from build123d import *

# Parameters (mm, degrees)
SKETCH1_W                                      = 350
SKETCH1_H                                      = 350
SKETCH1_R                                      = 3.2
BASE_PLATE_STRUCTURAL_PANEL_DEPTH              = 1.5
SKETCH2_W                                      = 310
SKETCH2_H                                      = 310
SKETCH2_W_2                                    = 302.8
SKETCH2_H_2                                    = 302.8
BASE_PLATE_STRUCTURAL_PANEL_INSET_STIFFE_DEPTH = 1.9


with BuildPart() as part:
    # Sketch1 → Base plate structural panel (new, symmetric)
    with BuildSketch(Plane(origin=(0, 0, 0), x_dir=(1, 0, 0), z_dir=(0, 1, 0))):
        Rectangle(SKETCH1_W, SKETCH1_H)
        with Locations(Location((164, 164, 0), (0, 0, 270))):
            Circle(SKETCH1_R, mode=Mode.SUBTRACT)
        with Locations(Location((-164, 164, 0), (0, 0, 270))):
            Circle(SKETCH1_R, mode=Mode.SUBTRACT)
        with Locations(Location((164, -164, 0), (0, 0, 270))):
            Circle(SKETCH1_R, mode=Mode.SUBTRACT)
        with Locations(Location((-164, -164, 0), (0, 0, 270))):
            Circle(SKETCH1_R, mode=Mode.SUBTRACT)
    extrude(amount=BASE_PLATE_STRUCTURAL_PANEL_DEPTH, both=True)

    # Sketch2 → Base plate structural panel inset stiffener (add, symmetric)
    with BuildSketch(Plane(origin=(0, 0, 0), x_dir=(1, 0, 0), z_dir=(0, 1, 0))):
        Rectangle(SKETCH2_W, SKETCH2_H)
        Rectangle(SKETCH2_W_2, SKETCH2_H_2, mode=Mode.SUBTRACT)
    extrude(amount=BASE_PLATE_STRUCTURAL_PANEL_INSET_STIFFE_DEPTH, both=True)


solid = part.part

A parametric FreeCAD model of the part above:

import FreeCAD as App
import Part
import Sketcher
from FreeCAD import Vector
Q = App.Units.Quantity


def add_polygon(sketch, points):
    """Adds a closed chain of lines whose ends are joined by coincident constraints."""
    first, n = sketch.GeometryCount, len(points)
    for a, b in zip(points, points[1:] + points[:1]):
        sketch.addGeometry(Part.LineSegment(App.Vector(*a, 0), App.Vector(*b, 0)), False)
    for i in range(n):
        sketch.addConstraint(Sketcher.Constraint("Coincident", first + i, 2, first + (i + 1) % n, 1))

doc = App.newDocument("Part")
body = doc.addObject("PartDesign::Body", "Body")

# Sketch on XZ plane
sketch1 = body.newObject("Sketcher::SketchObject", "Sketch")
sketch1.AttachmentSupport = (doc.getObject("XZ_Plane"), [""])
sketch1.MapMode = "FlatFace"
add_polygon(sketch1, [(-175, -175), (-175, 175), (175, 175), (175, -175)])  # lines 0-3
sketch1.addGeometry(Part.Circle(Vector(-164, 164, 0), Vector(0, 0, 1), 3.2), False)  # 4
sketch1.addGeometry(Part.Circle(Vector(164, 164, 0), Vector(0, 0, 1), 3.2), False)  # 5
sketch1.addGeometry(Part.Circle(Vector(-164, -164, 0), Vector(0, 0, 1), 3.2), False)  # 6
sketch1.addGeometry(Part.Circle(Vector(164, -164, 0), Vector(0, 0, 1), 3.2), False)  # 7
sketch1.addConstraint([
    Sketcher.Constraint("Vertical", 0),
    Sketcher.Constraint("Horizontal", 1),
    Sketcher.Constraint("Vertical", 2),
    Sketcher.Constraint("Horizontal", 3),
    Sketcher.Constraint("Equal", 4, 5),
    Sketcher.Constraint("Equal", 5, 6),
    Sketcher.Constraint("Equal", 6, 7),
    Sketcher.Constraint("Symmetric", 5, 3, 6, 3, -1, 1),
    Sketcher.Constraint("Symmetric", 4, 3, 7, 3, -1, 1),
    Sketcher.Constraint("Symmetric", 0, 2, 2, 2, -1, 1),
    Sketcher.Constraint("Symmetric", 4, 3, 5, 3, -2),
    Sketcher.Constraint("Equal", 3, 0),
    Sketcher.Constraint("Diameter", 4, Q("6.4 mm")),
    Sketcher.Constraint("DistanceX", 1, 1, 1, 2, Q("350 mm")),
    Sketcher.Constraint("DistanceX", 4, 3, -1, 1, Q("164 mm")),
    Sketcher.Constraint("DistanceY", -1, 1, 4, 3, Q("164 mm")),
])
pad1 = body.newObject("PartDesign::Pad", "Pad")
pad1.Profile = sketch1
pad1.Length = 3
pad1.Midplane = True

# Sketch on XZ plane
sketch2 = body.newObject("Sketcher::SketchObject", "Sketch001")
sketch2.AttachmentSupport = (doc.getObject("XZ_Plane"), [""])
sketch2.MapMode = "FlatFace"
add_polygon(sketch2, [(-155, -155), (-155, 155), (155, 155), (155, -155)])  # lines 0-3
add_polygon(sketch2, [(151, 151), (-151, 151), (-151, -151), (151, -151)])  # lines 4-7
sketch2.addConstraint([
    Sketcher.Constraint("Vertical", 0),
    Sketcher.Constraint("Horizontal", 1),
    Sketcher.Constraint("Vertical", 2),
    Sketcher.Constraint("Horizontal", 3),
    Sketcher.Constraint("Horizontal", 4),
    Sketcher.Constraint("Vertical", 5),
    Sketcher.Constraint("Horizontal", 6),
    Sketcher.Constraint("Vertical", 7),
    Sketcher.Constraint("Symmetric", 0, 2, 2, 2, -1, 1),
    Sketcher.Constraint("Symmetric", 4, 2, 6, 2, -1, 1),
    Sketcher.Constraint("Equal", 3, 0),
    Sketcher.Constraint("Equal", 6, 5),
    Sketcher.Constraint("DistanceX", 1, 1, 1, 2, Q("310 mm")),
    Sketcher.Constraint("DistanceX", 4, 2, 4, 1, Q("302.8 mm")),
])
pad2 = body.newObject("PartDesign::Pad", "Pad001")
pad2.Profile = sketch2
pad2.Length = 3.8
pad2.Midplane = True

doc.recompute()
